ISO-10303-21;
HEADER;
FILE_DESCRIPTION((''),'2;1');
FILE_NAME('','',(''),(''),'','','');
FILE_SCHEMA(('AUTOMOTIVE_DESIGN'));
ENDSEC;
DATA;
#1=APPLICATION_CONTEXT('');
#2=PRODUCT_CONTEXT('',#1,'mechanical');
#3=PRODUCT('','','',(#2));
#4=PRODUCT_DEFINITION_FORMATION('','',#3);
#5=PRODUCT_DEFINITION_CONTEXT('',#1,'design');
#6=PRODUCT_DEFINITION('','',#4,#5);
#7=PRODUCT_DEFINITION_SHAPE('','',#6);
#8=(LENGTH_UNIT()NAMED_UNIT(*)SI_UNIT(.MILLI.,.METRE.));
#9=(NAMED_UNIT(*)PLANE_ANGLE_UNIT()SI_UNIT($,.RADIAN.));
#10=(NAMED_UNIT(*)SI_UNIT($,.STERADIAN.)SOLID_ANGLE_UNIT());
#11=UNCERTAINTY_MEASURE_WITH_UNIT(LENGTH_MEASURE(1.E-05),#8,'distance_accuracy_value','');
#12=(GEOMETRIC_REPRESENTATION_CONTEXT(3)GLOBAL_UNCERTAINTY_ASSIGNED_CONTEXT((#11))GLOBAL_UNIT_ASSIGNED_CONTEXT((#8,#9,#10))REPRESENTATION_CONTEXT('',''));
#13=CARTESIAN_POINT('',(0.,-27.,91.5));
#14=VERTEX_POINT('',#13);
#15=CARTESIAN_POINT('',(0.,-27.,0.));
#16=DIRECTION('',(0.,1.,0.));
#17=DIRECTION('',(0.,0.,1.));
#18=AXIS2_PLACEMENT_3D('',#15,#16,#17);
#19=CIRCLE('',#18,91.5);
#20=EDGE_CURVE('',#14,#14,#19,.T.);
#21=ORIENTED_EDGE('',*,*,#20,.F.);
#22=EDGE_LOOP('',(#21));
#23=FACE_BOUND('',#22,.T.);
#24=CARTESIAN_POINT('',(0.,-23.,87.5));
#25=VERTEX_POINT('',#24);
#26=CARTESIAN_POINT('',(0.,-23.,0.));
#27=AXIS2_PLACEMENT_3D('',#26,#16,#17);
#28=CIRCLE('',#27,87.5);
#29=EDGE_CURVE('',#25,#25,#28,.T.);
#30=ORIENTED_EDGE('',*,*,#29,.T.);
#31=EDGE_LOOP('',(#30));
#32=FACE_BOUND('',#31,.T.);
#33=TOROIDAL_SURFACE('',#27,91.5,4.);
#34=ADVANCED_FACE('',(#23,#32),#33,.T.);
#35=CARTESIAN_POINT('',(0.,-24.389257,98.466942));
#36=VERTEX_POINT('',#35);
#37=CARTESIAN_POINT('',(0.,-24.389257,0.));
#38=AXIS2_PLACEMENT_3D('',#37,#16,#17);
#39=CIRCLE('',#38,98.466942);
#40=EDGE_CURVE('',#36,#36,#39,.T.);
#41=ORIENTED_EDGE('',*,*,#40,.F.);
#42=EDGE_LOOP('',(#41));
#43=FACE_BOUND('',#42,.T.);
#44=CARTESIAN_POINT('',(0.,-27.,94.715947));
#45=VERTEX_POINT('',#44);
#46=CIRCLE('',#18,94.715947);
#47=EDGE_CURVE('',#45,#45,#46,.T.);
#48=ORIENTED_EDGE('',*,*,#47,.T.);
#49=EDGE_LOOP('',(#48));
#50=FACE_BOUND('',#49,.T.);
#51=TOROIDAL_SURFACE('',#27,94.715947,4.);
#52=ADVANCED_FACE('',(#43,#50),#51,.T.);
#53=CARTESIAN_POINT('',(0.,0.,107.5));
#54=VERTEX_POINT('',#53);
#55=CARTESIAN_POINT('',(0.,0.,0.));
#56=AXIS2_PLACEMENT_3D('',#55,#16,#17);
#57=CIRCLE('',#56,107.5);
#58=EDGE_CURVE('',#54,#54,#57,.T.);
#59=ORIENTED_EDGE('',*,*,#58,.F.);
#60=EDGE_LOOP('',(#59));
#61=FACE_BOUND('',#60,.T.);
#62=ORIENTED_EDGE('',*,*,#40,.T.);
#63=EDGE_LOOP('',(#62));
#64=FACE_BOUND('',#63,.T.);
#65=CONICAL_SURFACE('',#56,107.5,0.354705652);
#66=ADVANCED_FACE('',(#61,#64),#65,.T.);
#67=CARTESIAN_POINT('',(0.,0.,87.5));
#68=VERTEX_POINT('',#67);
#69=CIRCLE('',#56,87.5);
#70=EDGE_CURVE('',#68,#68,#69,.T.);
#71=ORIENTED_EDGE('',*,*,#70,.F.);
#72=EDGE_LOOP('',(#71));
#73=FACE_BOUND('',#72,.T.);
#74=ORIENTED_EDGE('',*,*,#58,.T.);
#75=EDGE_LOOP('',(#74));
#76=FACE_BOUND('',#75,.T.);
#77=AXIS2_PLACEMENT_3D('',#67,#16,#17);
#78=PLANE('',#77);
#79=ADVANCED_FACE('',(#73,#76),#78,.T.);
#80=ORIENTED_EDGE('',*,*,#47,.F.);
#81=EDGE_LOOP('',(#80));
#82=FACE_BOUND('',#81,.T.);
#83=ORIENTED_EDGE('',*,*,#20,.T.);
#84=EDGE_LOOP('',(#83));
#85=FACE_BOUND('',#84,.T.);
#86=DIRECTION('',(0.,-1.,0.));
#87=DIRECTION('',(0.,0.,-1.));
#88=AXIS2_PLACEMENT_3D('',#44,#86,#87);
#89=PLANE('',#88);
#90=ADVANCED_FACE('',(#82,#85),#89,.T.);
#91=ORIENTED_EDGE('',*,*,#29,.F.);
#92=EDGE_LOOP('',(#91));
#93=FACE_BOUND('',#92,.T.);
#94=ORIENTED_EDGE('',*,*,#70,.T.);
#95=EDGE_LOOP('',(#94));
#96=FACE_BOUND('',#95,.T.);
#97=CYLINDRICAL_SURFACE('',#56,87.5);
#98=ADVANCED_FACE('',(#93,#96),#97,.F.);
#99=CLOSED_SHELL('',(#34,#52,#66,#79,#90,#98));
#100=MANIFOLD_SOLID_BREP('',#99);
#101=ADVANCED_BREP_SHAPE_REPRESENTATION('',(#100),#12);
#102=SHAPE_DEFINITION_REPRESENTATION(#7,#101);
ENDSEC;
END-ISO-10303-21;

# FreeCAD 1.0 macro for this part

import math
import FreeCAD as App
import Part
import Sketcher
Q = App.Units.Quantity

doc = App.newDocument("Part")
params = doc.addObject("Spreadsheet::Sheet", "Params")
for row, (alias, value) in enumerate([
    ("sketch1_radius", "4 mm"),
    ("sketch1_width", "23 mm"),
    ("sketch1_height", "20 mm"),
    ("revolution_angle", "360 deg"),
], start=1):
    params.set(f"A{row}", alias)
    params.set(f"B{row}", "=" + value)
    params.setAlias(f"B{row}", alias)

body = doc.addObject("PartDesign::Body", "Body")

sketch1 = doc.addObject("Sketcher::SketchObject", "Sketch")
body.addObject(sketch1)
sketch1.AttachmentSupport = (doc.YZ_Plane, [""])
sketch1.MapMode = "FlatFace"
sketch1.addGeometry(Part.LineSegment(App.Vector(0, 107.5, 0), App.Vector(-24.4, 98.5, 0)), False)
sketch1.addGeometry(Part.ArcOfCircle(Part.Circle(App.Vector(-23, 94.7, 0), App.Vector(0, 0, 1), 4), math.radians(110), math.radians(180)), False)
sketch1.addGeometry(Part.LineSegment(App.Vector(-27, 94.7, 0), App.Vector(-27, 91.5, 0)), False)
sketch1.addGeometry(Part.ArcOfCircle(Part.Circle(App.Vector(-23, 91.5, 0), App.Vector(0, 0, 1), 4), math.radians(180), math.radians(270)), False)
sketch1.addGeometry(Part.LineSegment(App.Vector(-23, 87.5, 0), App.Vector(0, 87.5, 0)), False)
sketch1.addGeometry(Part.LineSegment(App.Vector(0, 87.5, 0), App.Vector(0, 107.5, 0)), False)
sketch1.addConstraint(Sketcher.Constraint("Tangent", 0, 2, 1, 1))
sketch1.addConstraint(Sketcher.Constraint("Tangent", 1, 2, 2, 1))
sketch1.addConstraint(Sketcher.Constraint("Tangent", 2, 2, 3, 1))
sketch1.addConstraint(Sketcher.Constraint("Tangent", 3, 2, 4, 1))
sketch1.addConstraint(Sketcher.Constraint("Coincident", 4, 2, 5, 1))
sketch1.addConstraint(Sketcher.Constraint("Coincident", 5, 2, 0, 1))
sketch1.addConstraint(Sketcher.Constraint("Vertical", 2))
sketch1.addConstraint(Sketcher.Constraint("Horizontal", 4))
sketch1.addConstraint(Sketcher.Constraint("Vertical", 5))
sketch1.addConstraint(Sketcher.Constraint("Equal", 1, 3))
sketch1.addConstraint(Sketcher.Constraint("PointOnObject", 4, 2, -2))
sketch1.addConstraint(Sketcher.Constraint("Radius", 1, Q("4 mm")))
sketch1.addConstraint(Sketcher.Constraint("DistanceX", 4, 1, 4, 2, Q("23 mm")))
sketch1.addConstraint(Sketcher.Constraint("DistanceY", 5, 1, 5, 2, Q("20 mm")))
sketch1.addConstraint(Sketcher.Constraint("DistanceY", -1, 1, 3, 3, Q("91.5 mm")))
sketch1.addConstraint(Sketcher.Constraint("DistanceY", 2, 2, 2, 1, Q("3.215947 mm")))
sketch1.setExpression("Constraints[11]", "Params.sketch1_radius")
sketch1.setExpression("Constraints[12]", "Params.sketch1_width")
sketch1.setExpression("Constraints[13]", "Params.sketch1_height")
revolution = doc.addObject("PartDesign::Revolution", "Revolution")
body.addObject(revolution)
revolution.Profile = sketch1
revolution.ReferenceAxis = (sketch1, ["H_Axis"])
revolution.setExpression("Angle", "Params.revolution_angle")

doc.recompute()
